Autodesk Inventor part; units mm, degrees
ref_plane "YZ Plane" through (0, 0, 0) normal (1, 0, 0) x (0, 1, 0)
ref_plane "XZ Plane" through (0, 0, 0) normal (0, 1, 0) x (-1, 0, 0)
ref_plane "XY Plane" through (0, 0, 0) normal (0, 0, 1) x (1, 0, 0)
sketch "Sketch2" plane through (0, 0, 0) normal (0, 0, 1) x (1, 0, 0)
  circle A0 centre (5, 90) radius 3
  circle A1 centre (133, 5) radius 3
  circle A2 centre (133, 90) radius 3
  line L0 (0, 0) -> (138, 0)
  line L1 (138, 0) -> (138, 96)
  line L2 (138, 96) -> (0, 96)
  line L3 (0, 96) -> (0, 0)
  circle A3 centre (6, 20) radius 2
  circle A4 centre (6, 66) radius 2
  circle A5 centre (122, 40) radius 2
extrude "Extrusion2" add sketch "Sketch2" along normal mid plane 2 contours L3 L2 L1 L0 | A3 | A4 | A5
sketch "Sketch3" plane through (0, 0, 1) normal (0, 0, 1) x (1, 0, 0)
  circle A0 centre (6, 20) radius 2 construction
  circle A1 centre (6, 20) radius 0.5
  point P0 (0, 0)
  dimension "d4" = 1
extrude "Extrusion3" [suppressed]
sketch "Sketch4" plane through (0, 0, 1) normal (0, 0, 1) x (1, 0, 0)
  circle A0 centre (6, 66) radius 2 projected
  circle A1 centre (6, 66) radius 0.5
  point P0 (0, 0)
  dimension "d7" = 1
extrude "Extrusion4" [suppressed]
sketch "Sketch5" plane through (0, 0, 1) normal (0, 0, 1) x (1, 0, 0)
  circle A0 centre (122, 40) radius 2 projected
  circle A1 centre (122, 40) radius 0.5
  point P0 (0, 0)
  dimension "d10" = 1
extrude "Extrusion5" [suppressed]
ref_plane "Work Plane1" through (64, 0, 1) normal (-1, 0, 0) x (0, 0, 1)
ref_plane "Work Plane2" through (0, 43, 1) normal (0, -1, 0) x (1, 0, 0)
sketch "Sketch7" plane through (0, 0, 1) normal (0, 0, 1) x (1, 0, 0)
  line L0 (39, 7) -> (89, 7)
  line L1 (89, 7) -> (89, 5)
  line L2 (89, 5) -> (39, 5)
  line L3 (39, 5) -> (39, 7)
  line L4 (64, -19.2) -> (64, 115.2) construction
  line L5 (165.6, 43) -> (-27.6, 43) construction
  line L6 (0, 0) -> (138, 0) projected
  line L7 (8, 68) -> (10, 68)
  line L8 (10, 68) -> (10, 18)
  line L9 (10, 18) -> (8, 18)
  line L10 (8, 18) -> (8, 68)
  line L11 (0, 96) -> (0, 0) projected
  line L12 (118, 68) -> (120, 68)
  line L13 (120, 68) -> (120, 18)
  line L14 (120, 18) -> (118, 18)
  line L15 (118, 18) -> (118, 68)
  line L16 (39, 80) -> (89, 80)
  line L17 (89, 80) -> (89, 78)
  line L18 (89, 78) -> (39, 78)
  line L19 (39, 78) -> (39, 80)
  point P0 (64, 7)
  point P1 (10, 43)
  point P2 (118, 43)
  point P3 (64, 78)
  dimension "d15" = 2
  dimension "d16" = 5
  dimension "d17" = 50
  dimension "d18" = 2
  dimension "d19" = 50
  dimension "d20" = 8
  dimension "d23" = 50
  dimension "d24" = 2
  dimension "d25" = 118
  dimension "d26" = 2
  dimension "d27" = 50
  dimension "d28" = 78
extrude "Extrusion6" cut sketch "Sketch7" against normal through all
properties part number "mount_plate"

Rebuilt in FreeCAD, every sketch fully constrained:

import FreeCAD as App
import Part
import Sketcher

V = App.Vector
Q = App.Units.Quantity


def add_polygon(sketch, points):
    """Adds a closed chain of lines whose ends are joined by coincident constraints."""
    first, n = sketch.GeometryCount, len(points)
    for a, b in zip(points, points[1:] + points[:1]):
        sketch.addGeometry(Part.LineSegment(App.Vector(*a, 0), App.Vector(*b, 0)), False)
    for i in range(n):
        sketch.addConstraint(Sketcher.Constraint("Coincident", first + i, 2, first + (i + 1) % n, 1))

doc = App.newDocument("Part")
body = doc.addObject("PartDesign::Body", "Body")

sketch1 = body.newObject("Sketcher::SketchObject", "Sketch")
sketch1.AttachmentSupport = (doc.getObject("XY_Plane"), [""])
sketch1.MapMode = "FlatFace"
add_polygon(sketch1, [(0, 96), (0, 0), (138, 0), (138, 96)])
sketch1.addGeometry(Part.Circle(V(133, 5, 0), V(0, 0, 1), 3), False)
sketch1.addGeometry(Part.Circle(V(5, 90, 0), V(0, 0, 1), 3), False)
sketch1.addGeometry(Part.Circle(V(133, 90, 0), V(0, 0, 1), 3), False)
sketch1.addConstraint([
    Sketcher.Constraint("Vertical", 0),
    Sketcher.Constraint("Horizontal", 1),
    Sketcher.Constraint("Vertical", 2),
    Sketcher.Constraint("Horizontal", 3),
    Sketcher.Constraint("Coincident", 0, 2, -1, 1),
    Sketcher.Constraint("Equal", 4, 5),
    Sketcher.Constraint("Equal", 5, 6),
    Sketcher.Constraint("Horizontal", 5, 3, 6, 3),
    Sketcher.Constraint("Vertical", 4, 3, 6, 3),
    Sketcher.Constraint("Diameter", 4, Q("6 mm")),
    Sketcher.Constraint("DistanceX", 1, 1, 1, 2, Q("138 mm")),
    Sketcher.Constraint("DistanceY", 0, 2, 0, 1, Q("96 mm")),
    Sketcher.Constraint("DistanceX", -1, 1, 4, 3, Q("133 mm")),
    Sketcher.Constraint("DistanceY", -1, 1, 4, 3, Q("5 mm")),
    Sketcher.Constraint("DistanceX", -1, 1, 5, 3, Q("5 mm")),
    Sketcher.Constraint("DistanceY", -1, 1, 5, 3, Q("90 mm")),
])
pad1 = body.newObject("PartDesign::Pad", "Pad")
pad1.Profile = sketch1
pad1.Length = 2
pad1.Midplane = True

sketch2 = body.newObject("Sketcher::SketchObject", "Sketch001")
sketch2.AttachmentSupport = (doc.getObject("XY_Plane"), [""])
sketch2.MapMode = "FlatFace"
sketch2.AttachmentOffset = App.Placement(V(0, 0, 1), App.Rotation())
add_polygon(sketch2, [(89, 7), (39, 7), (39, 5), (89, 5)])
add_polygon(sketch2, [(10, 68), (8, 68), (8, 18), (10, 18)])
add_polygon(sketch2, [(120, 68), (118, 68), (118, 18), (120, 18)])
add_polygon(sketch2, [(89, 80), (39, 80), (39, 78), (89, 78)])
sketch2.addConstraint([
    Sketcher.Constraint("Horizontal", 0),
    Sketcher.Constraint("Vertical", 1),
    Sketcher.Constraint("Horizontal", 2),
    Sketcher.Constraint("Vertical", 3),
    Sketcher.Constraint("Horizontal", 4),
    Sketcher.Constraint("Vertical", 5),
    Sketcher.Constraint("Horizontal", 6),
    Sketcher.Constraint("Vertical", 7),
    Sketcher.Constraint("Horizontal", 8),
    Sketcher.Constraint("Vertical", 9),
    Sketcher.Constraint("Horizontal", 10),
    Sketcher.Constraint("Vertical", 11),
    Sketcher.Constraint("Horizontal", 12),
    Sketcher.Constraint("Vertical", 13),
    Sketcher.Constraint("Horizontal", 14),
    Sketcher.Constraint("Vertical", 15),
    Sketcher.Constraint("Horizontal", 7, 2, 8, 2),
    Sketcher.Constraint("Horizontal", 6, 2, 9, 2),
    Sketcher.Constraint("Vertical", 1, 2, 12, 2),
    Sketcher.Constraint("Vertical", 3, 2, 14, 2),
    Sketcher.Constraint("Equal", 6, 8),
    Sketcher.Constraint("Equal", 10, 1),
    Sketcher.Constraint("Equal", 14, 5),
    Sketcher.Constraint("Equal", 3, 13),
    Sketcher.Constraint("DistanceX", 0, 2, 0, 1, Q("50 mm")),
    Sketcher.Constraint("DistanceX", 4, 2, 4, 1, Q("2 mm")),
    Sketcher.Constraint("DistanceY", -1, 1, 1, 2, Q("5 mm")),
    Sketcher.Constraint("DistanceX", -1, 1, 4, 2, Q("8 mm")),
    Sketcher.Constraint("DistanceX", -1, 1, 8, 2, Q("118 mm")),
    Sketcher.Constraint("DistanceY", -1, 1, 13, 2, Q("78 mm")),
    Sketcher.Constraint("DistanceX", -1, 1, 0, 2, Q("39 mm")),
    Sketcher.Constraint("DistanceY", -1, 1, 4, 2, Q("68 mm")),
])
pocket1 = body.newObject("PartDesign::Pocket", "Pocket")
pocket1.Profile = sketch2
pocket1.Type = "ThroughAll"

doc.recompute()
